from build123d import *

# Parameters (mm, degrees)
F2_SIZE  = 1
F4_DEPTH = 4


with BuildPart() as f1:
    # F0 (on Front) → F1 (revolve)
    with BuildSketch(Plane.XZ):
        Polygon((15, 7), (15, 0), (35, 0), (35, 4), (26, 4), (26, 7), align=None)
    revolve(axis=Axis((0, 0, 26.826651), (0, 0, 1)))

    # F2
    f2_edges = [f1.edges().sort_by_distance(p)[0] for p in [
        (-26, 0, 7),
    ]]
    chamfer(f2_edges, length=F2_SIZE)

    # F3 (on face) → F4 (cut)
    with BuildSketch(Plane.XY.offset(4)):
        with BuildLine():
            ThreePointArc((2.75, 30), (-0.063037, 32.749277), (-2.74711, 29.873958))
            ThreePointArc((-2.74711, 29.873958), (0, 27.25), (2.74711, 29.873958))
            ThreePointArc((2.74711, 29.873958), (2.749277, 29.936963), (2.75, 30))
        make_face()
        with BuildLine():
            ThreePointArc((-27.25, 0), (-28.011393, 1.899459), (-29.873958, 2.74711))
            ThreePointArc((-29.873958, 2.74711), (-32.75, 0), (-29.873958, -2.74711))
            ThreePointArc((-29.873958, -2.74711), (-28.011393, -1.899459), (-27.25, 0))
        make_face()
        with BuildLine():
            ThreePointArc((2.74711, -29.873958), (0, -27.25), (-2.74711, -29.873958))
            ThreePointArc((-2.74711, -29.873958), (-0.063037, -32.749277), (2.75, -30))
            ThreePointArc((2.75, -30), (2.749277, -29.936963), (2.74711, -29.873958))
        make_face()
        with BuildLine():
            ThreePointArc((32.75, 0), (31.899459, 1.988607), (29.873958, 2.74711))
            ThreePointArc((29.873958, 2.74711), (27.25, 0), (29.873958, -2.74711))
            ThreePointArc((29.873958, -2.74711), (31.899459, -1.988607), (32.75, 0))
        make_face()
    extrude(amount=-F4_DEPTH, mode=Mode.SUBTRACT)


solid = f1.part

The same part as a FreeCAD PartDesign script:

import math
import FreeCAD as App
import Part
import Sketcher
from FreeCAD import Vector


def edges_at(feature, points):
    """Names of the edges that pass closest to the given points."""
    edges = feature.Shape.Edges
    near = lambda p: min(range(len(edges)), key=lambda i: edges[i].distToShape(Part.Vertex(*p))[0])
    return sorted({f"Edge{near(p) + 1}" for p in points})


def add_polygon(sketch, points):
    """Adds a closed chain of lines whose ends are joined by coincident constraints."""
    first, n = sketch.GeometryCount, len(points)
    for a, b in zip(points, points[1:] + points[:1]):
        sketch.addGeometry(Part.LineSegment(App.Vector(*a, 0), App.Vector(*b, 0)), False)
    for i in range(n):
        sketch.addConstraint(Sketcher.Constraint("Coincident", first + i, 2, first + (i + 1) % n, 1))

doc = App.newDocument("Part")
params = doc.addObject("Spreadsheet::Sheet", "Params")
for row, (alias, value) in enumerate([
    ("sketch1_width", "20 mm"),
    ("sketch1_width2", "9 mm"),
    ("sketch1_height", "7 mm"),
    ("sketch1_height2", "4 mm"),
    ("revolution_angle", "360 deg"),
    ("chamfer_size", "1 mm"),
    ("sketch2_radius", "2.75 mm"),
    ("pocket1_length", "4 mm"),
], start=1):
    params.set(f"A{row}", alias)
    params.set(f"B{row}", "=" + value)
    params.setAlias(f"B{row}", alias)

body = doc.addObject("PartDesign::Body", "Body")

# Sketch on XZ plane
sketch1 = body.newObject("Sketcher::SketchObject", "Sketch")
sketch1.AttachmentSupport = (doc.getObject("XZ_Plane"), [""])
sketch1.MapMode = "FlatFace"
add_polygon(sketch1, [(15, 7), (15, 0), (35, 0), (35, 4), (26, 4), (26, 7)])  # lines 0-5
sketch1.addConstraint([
    Sketcher.Constraint("Vertical", 0),
    Sketcher.Constraint("Horizontal", 1),
    Sketcher.Constraint("Vertical", 2),
    Sketcher.Constraint("Horizontal", 3),
    Sketcher.Constraint("Vertical", 4),
    Sketcher.Constraint("Horizontal", 5),
    Sketcher.Constraint("PointOnObject", 0, 2, -1),
    Sketcher.Constraint("DistanceX", 1, 1, 1, 2, 20.0),
    Sketcher.Constraint("DistanceX", 3, 2, 3, 1, 9.0),
    Sketcher.Constraint("DistanceY", 0, 2, 0, 1, 7.0),
    Sketcher.Constraint("DistanceY", 2, 1, 2, 2, 4.0),
    Sketcher.Constraint("DistanceX", -1, 1, 0, 2, 15.0),
])
sketch1.setExpression("Constraints[13]", "Params.sketch1_width")
sketch1.setExpression("Constraints[14]", "Params.sketch1_width2")
sketch1.setExpression("Constraints[15]", "Params.sketch1_height")
sketch1.setExpression("Constraints[16]", "Params.sketch1_height2")
revolution = body.newObject("PartDesign::Revolution", "Revolution")
revolution.Profile = sketch1
revolution.ReferenceAxis = (sketch1, ["V_Axis"])
revolution.setExpression("Angle", "Params.revolution_angle")
doc.recompute()

chamfer = body.newObject("PartDesign::Chamfer", "Chamfer")
chamfer.Base = (revolution, edges_at(revolution, [(-26, 0, 7)]))
chamfer.setExpression("Size", "Params.chamfer_size")

# Sketch on XY plane
sketch2 = body.newObject("Sketcher::SketchObject", "Sketch001")
sketch2.AttachmentSupport = (doc.getObject("XY_Plane"), [""])
sketch2.MapMode = "FlatFace"
sketch2.AttachmentOffset = App.Placement(Vector(0, 0, 4), App.Rotation())
sketch2.addGeometry([
    Part.ArcOfCircle(Part.Circle(Vector(0, 30, 0), Vector(0, 0, 1), 2.75), math.radians(0.000008), math.radians(182.626975)),  # 0
    Part.ArcOfCircle(Part.Circle(Vector(0, 30, 0), Vector(0, 0, 1), 2.75), math.radians(-177.373016), math.radians(-2.626984)),  # 1
    Part.ArcOfCircle(Part.Circle(Vector(-0.00158, 30.000036, 0), Vector(0, 0, 1), 2.75158), math.radians(-2.626235), math.radians(-0.00076)),  # 2
    Part.ArcOfCircle(Part.Circle(Vector(-29.999999, 0.000001, 0), Vector(0, 0, 1), 2.749999), math.radians(-0.000022), math.radians(87.373038)),  # 3
    Part.ArcOfCircle(Part.Circle(Vector(-30, 0, 0), Vector(0, 0, 1), 2.75), math.radians(87.373016), math.radians(272.626984)),  # 4
    Part.ArcOfCircle(Part.Circle(Vector(-29.999999, -0.000001, 0), Vector(0, 0, 1), 2.749999), math.radians(-87.373038), math.radians(0.000022)),  # 5
    Part.ArcOfCircle(Part.Circle(Vector(0, -30, 0), Vector(0, 0, 1), 2.75), math.radians(2.626984), math.radians(177.373016)),  # 6
    Part.ArcOfCircle(Part.Circle(Vector(0, -30, 0), Vector(0, 0, 1), 2.75), math.radians(177.373025), math.radians(359.999992)),  # 7
    Part.ArcOfCircle(Part.Circle(Vector(-0.00158, -30.000036, 0), Vector(0, 0, 1), 2.75158), math.radians(0.00076), math.radians(2.626235)),  # 8
    Part.ArcOfCircle(Part.Circle(Vector(30.000001, 0.000001, 0), Vector(0, 0, 1), 2.749999), math.radians(-0.00002), math.radians(92.627005)),  # 9
    Part.ArcOfCircle(Part.Circle(Vector(30, 0, 0), Vector(0, 0, 1), 2.75), math.radians(92.626984), math.radians(267.373016)),  # 10
    Part.ArcOfCircle(Part.Circle(Vector(30.000001, -0.000001, 0), Vector(0, 0, 1), 2.749999), math.radians(-92.627005), math.radians(0.00002)),  # 11
], False)
sketch2.addConstraint([
    Sketcher.Constraint("Tangent", 0, 2, 1, 1),
    Sketcher.Constraint("Coincident", 1, 2, 2, 1),
    Sketcher.Constraint("Coincident", 2, 2, 0, 1),
    Sketcher.Constraint("Tangent", 3, 2, 4, 1),
    Sketcher.Constraint("Tangent", 4, 2, 5, 1),
    Sketcher.Constraint("Tangent", 5, 2, 3, 1),
    Sketcher.Constraint("Tangent", 6, 2, 7, 1),
    Sketcher.Constraint("Coincident", 7, 2, 8, 1),
    Sketcher.Constraint("Coincident", 8, 2, 6, 1),
    Sketcher.Constraint("Tangent", 9, 2, 10, 1),
    Sketcher.Constraint("Tangent", 10, 2, 11, 1),
    Sketcher.Constraint("Tangent", 11, 2, 9, 1),
    Sketcher.Constraint("Equal", 0, 1),
    Sketcher.Constraint("Equal", 1, 3),
    Sketcher.Constraint("Equal", 5, 6),
    Sketcher.Constraint("Equal", 6, 7),
    Sketcher.Constraint("Equal", 2, 8),
    Sketcher.Constraint("Equal", 7, 9),
    Sketcher.Constraint("Symmetric", 0, 3, 6, 3, -1, 1),
    Sketcher.Constraint("Symmetric", 3, 3, 9, 3, -1, 1),
    Sketcher.Constraint("Symmetric", 0, 2, 1, 2, -2),
    Sketcher.Constraint("Symmetric", 3, 2, 9, 2, -2),
    Sketcher.Constraint("PointOnObject", 5, 2, -1),
    Sketcher.Constraint("PointOnObject", 11, 2, -1),
    Sketcher.Constraint("Horizontal", 1, 3, 2, 2),
    Sketcher.Constraint("Horizontal", 6, 3, 7, 2),
    Sketcher.Constraint("Horizontal", 6, 2, 8, 2),
    Sketcher.Constraint("Horizontal", 4, 2, 10, 2),
    Sketcher.Constraint("Vertical", 3, 2, 4, 2),
    Sketcher.Constraint("Vertical", 0, 2, 6, 2),
    Sketcher.Constraint("Radius", 0, 2.75),
    Sketcher.Constraint("DistanceY", -1, 1, 0, 3, 30.0),
    Sketcher.Constraint("DistanceX", 3, 3, -1, 1, 29.999999),
    Sketcher.Constraint("Radius", 2, 2.75158),
    Sketcher.Constraint("DistanceX", 0, 2, -1, 1, 2.74711),
    Sketcher.Constraint("DistanceY", -1, 1, 3, 2, 2.74711),
])
sketch2.setExpression("Constraints[30]", "Params.sketch2_radius")
pocket1 = body.newObject("PartDesign::Pocket", "Pocket")
pocket1.Profile = sketch2
pocket1.setExpression("Length", "Params.pocket1_length")

doc.recompute()
